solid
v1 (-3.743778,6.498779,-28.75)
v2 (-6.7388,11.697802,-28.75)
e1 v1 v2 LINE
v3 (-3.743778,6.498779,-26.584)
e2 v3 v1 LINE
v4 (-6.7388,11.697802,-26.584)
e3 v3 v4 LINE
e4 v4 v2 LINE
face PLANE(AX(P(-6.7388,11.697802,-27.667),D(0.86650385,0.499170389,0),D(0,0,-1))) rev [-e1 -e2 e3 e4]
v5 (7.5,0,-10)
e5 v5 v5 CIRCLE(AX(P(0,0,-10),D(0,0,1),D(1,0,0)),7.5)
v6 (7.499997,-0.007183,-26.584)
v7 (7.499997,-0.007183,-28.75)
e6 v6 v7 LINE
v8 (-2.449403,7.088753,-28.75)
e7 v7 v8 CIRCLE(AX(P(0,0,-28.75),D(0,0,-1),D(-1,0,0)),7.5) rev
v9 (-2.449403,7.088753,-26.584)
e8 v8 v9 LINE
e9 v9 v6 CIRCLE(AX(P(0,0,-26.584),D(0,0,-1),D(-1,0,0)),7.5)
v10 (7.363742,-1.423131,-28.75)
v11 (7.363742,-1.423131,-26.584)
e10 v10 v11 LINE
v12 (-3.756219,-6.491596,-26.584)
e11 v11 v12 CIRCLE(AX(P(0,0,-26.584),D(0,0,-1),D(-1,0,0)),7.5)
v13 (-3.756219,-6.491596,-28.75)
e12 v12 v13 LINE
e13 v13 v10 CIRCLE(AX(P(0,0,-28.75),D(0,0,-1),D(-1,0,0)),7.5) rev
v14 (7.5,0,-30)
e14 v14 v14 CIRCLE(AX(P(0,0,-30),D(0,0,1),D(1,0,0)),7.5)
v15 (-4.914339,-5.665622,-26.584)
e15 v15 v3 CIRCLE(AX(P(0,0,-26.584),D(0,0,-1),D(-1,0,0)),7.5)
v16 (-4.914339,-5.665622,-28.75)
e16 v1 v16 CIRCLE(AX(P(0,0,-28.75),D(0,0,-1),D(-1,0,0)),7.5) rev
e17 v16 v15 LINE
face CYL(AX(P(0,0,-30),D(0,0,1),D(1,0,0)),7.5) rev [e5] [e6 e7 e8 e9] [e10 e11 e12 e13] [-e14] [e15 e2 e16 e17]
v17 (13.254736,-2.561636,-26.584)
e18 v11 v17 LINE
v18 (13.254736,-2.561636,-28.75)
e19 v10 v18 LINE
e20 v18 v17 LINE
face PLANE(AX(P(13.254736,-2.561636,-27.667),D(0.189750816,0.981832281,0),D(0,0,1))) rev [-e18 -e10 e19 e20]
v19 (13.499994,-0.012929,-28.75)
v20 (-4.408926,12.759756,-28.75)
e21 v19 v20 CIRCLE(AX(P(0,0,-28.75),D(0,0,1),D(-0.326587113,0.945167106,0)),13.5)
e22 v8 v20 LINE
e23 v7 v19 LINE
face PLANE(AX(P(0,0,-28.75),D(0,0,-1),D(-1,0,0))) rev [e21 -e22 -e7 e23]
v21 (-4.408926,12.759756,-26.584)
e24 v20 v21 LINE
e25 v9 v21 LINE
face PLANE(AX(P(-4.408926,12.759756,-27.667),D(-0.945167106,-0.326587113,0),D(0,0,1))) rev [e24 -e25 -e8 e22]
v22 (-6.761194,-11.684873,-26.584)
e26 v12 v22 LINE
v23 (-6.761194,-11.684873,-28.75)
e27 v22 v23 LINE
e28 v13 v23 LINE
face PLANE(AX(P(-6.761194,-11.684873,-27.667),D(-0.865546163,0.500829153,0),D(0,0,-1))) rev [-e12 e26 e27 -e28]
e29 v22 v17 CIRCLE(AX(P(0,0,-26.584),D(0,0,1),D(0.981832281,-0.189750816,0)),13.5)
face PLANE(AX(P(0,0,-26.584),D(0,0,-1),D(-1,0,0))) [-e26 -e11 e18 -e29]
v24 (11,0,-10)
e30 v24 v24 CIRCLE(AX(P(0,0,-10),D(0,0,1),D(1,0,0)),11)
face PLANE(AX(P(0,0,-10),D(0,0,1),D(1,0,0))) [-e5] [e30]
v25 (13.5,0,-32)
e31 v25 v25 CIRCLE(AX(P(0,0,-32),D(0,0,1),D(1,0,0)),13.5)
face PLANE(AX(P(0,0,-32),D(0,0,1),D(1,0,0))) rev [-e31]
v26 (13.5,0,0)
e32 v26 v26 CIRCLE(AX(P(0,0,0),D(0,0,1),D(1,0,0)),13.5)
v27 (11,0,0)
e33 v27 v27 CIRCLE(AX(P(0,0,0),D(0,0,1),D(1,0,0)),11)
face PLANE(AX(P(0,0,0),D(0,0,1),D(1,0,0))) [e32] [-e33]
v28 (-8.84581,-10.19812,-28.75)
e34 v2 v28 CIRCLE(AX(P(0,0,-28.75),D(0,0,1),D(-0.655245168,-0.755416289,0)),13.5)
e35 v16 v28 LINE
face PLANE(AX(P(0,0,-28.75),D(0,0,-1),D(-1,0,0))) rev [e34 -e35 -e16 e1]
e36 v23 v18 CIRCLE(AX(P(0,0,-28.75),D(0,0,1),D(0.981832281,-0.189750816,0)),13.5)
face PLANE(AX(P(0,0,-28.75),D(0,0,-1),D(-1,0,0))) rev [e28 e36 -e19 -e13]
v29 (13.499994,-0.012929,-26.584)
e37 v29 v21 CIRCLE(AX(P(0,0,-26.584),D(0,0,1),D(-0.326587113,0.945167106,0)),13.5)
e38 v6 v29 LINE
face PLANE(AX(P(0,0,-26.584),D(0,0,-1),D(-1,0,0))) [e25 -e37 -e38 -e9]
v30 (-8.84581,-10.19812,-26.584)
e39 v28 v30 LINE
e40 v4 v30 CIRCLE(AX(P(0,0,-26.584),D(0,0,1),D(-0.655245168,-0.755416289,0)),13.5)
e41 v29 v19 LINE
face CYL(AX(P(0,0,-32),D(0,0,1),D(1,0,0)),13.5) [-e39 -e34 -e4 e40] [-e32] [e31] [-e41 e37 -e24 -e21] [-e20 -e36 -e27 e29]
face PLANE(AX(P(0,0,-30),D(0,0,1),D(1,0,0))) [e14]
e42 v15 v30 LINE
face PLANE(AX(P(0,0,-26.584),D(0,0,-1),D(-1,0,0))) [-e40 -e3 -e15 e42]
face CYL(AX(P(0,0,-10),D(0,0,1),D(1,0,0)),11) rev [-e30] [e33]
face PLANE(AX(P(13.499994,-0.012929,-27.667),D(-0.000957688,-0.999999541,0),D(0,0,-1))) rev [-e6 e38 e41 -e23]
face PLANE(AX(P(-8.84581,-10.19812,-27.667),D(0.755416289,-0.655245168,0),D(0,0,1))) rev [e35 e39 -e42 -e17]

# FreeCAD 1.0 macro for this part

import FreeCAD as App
import Part
import Sketcher


def add_polygon(sketch, points):
    """Adds a closed chain of lines whose ends are joined by coincident constraints."""
    first, n = sketch.GeometryCount, len(points)
    for a, b in zip(points, points[1:] + points[:1]):
        sketch.addGeometry(Part.LineSegment(App.Vector(*a, 0), App.Vector(*b, 0)), False)
    for i in range(n):
        sketch.addConstraint(Sketcher.Constraint("Coincident", first + i, 2, first + (i + 1) % n, 1))

doc = App.newDocument("Part")
body = doc.addObject("PartDesign::Body", "Body")

sketch1 = body.newObject("Sketcher::SketchObject", "Sketch")
sketch1.AttachmentSupport = (doc.getObject("XY_Plane"), [""])
sketch1.MapMode = "FlatFace"
sketch1.addGeometry(Part.Circle(App.Vector(0, 0, 0), App.Vector(0, 0, 1), 14), False)
sketch1.addConstraint([
    Sketcher.Constraint("Coincident", 0, 3, -1, 1),
    Sketcher.Constraint("Diameter", 0, 27.0),
])
pad1 = body.newObject("PartDesign::Pad", "Pad")
pad1.Profile = sketch1
pad1.Length = 32
pad1.Reversed = True

sketch2 = body.newObject("Sketcher::SketchObject", "Sketch001")
sketch2.AttachmentSupport = (doc.getObject("XY_Plane"), [""])
sketch2.MapMode = "FlatFace"
sketch2.addGeometry(Part.Circle(App.Vector(0, 0, 0), App.Vector(0, 0, 1), 11), False)
sketch2.addConstraint([
    Sketcher.Constraint("Coincident", 0, 3, -1, 1),
    Sketcher.Constraint("Diameter", 0, 22.0),
])
pocket1 = body.newObject("PartDesign::Pocket", "Pocket")
pocket1.Profile = sketch2
pocket1.Length = 10

sketch3 = body.newObject("Sketcher::SketchObject", "Sketch002")
sketch3.AttachmentSupport = (doc.getObject("XY_Plane"), [""])
sketch3.MapMode = "FlatFace"
sketch3.addGeometry(Part.Circle(App.Vector(0, 0, 0), App.Vector(0, 0, 1), 8), False)
sketch3.addConstraint([
    Sketcher.Constraint("Coincident", 0, 3, -1, 1),
    Sketcher.Constraint("Diameter", 0, 15.0),
])
pocket2 = body.newObject("PartDesign::Pocket", "Pocket001")
pocket2.Profile = sketch3
pocket2.Length = 30

sketch4 = body.newObject("Sketcher::SketchObject", "Sketch003")
sketch4.Placement = App.Placement(App.Vector(0, 0, 0), App.Rotation(App.Vector(0.999999541, -0.000957688, 0), App.Vector(0, 0, 0.999999999), App.Vector(-0.000957688, -0.999999541, 0), "ZXY"))
add_polygon(sketch4, [(1.5, -26.6), (1.5, -28.7), (13.5, -28.7), (13.5, -26.6)])
sketch4.addConstraint([
    Sketcher.Constraint("Vertical", 0),
    Sketcher.Constraint("Horizontal", 1),
    Sketcher.Constraint("Vertical", 2),
    Sketcher.Constraint("Horizontal", 3),
    Sketcher.Constraint("DistanceX", 1, 1, 1, 2, 12.0),
    Sketcher.Constraint("DistanceX", -1, 1, 0, 2, 1.5),
    Sketcher.Constraint("DistanceY", 0, 2, 0, 1, 2.166),
    Sketcher.Constraint("DistanceY", 0, 2, -1, 1, 28.75),
])
groove = body.newObject("PartDesign::Groove", "Groove")
groove.Profile = sketch4
groove.ReferenceAxis = (sketch4, ["V_Axis"])
groove.Angle = 109.116629
doc.recompute()

polarpattern = body.newObject("PartDesign::PolarPattern", "PolarPattern")
polarpattern.Originals = [groove]
polarpattern.Axis = (doc.getObject("Z_Axis"), [""])
polarpattern.Angle = 360
polarpattern.Occurrences = 3
body.Tip = polarpattern

doc.recompute()
